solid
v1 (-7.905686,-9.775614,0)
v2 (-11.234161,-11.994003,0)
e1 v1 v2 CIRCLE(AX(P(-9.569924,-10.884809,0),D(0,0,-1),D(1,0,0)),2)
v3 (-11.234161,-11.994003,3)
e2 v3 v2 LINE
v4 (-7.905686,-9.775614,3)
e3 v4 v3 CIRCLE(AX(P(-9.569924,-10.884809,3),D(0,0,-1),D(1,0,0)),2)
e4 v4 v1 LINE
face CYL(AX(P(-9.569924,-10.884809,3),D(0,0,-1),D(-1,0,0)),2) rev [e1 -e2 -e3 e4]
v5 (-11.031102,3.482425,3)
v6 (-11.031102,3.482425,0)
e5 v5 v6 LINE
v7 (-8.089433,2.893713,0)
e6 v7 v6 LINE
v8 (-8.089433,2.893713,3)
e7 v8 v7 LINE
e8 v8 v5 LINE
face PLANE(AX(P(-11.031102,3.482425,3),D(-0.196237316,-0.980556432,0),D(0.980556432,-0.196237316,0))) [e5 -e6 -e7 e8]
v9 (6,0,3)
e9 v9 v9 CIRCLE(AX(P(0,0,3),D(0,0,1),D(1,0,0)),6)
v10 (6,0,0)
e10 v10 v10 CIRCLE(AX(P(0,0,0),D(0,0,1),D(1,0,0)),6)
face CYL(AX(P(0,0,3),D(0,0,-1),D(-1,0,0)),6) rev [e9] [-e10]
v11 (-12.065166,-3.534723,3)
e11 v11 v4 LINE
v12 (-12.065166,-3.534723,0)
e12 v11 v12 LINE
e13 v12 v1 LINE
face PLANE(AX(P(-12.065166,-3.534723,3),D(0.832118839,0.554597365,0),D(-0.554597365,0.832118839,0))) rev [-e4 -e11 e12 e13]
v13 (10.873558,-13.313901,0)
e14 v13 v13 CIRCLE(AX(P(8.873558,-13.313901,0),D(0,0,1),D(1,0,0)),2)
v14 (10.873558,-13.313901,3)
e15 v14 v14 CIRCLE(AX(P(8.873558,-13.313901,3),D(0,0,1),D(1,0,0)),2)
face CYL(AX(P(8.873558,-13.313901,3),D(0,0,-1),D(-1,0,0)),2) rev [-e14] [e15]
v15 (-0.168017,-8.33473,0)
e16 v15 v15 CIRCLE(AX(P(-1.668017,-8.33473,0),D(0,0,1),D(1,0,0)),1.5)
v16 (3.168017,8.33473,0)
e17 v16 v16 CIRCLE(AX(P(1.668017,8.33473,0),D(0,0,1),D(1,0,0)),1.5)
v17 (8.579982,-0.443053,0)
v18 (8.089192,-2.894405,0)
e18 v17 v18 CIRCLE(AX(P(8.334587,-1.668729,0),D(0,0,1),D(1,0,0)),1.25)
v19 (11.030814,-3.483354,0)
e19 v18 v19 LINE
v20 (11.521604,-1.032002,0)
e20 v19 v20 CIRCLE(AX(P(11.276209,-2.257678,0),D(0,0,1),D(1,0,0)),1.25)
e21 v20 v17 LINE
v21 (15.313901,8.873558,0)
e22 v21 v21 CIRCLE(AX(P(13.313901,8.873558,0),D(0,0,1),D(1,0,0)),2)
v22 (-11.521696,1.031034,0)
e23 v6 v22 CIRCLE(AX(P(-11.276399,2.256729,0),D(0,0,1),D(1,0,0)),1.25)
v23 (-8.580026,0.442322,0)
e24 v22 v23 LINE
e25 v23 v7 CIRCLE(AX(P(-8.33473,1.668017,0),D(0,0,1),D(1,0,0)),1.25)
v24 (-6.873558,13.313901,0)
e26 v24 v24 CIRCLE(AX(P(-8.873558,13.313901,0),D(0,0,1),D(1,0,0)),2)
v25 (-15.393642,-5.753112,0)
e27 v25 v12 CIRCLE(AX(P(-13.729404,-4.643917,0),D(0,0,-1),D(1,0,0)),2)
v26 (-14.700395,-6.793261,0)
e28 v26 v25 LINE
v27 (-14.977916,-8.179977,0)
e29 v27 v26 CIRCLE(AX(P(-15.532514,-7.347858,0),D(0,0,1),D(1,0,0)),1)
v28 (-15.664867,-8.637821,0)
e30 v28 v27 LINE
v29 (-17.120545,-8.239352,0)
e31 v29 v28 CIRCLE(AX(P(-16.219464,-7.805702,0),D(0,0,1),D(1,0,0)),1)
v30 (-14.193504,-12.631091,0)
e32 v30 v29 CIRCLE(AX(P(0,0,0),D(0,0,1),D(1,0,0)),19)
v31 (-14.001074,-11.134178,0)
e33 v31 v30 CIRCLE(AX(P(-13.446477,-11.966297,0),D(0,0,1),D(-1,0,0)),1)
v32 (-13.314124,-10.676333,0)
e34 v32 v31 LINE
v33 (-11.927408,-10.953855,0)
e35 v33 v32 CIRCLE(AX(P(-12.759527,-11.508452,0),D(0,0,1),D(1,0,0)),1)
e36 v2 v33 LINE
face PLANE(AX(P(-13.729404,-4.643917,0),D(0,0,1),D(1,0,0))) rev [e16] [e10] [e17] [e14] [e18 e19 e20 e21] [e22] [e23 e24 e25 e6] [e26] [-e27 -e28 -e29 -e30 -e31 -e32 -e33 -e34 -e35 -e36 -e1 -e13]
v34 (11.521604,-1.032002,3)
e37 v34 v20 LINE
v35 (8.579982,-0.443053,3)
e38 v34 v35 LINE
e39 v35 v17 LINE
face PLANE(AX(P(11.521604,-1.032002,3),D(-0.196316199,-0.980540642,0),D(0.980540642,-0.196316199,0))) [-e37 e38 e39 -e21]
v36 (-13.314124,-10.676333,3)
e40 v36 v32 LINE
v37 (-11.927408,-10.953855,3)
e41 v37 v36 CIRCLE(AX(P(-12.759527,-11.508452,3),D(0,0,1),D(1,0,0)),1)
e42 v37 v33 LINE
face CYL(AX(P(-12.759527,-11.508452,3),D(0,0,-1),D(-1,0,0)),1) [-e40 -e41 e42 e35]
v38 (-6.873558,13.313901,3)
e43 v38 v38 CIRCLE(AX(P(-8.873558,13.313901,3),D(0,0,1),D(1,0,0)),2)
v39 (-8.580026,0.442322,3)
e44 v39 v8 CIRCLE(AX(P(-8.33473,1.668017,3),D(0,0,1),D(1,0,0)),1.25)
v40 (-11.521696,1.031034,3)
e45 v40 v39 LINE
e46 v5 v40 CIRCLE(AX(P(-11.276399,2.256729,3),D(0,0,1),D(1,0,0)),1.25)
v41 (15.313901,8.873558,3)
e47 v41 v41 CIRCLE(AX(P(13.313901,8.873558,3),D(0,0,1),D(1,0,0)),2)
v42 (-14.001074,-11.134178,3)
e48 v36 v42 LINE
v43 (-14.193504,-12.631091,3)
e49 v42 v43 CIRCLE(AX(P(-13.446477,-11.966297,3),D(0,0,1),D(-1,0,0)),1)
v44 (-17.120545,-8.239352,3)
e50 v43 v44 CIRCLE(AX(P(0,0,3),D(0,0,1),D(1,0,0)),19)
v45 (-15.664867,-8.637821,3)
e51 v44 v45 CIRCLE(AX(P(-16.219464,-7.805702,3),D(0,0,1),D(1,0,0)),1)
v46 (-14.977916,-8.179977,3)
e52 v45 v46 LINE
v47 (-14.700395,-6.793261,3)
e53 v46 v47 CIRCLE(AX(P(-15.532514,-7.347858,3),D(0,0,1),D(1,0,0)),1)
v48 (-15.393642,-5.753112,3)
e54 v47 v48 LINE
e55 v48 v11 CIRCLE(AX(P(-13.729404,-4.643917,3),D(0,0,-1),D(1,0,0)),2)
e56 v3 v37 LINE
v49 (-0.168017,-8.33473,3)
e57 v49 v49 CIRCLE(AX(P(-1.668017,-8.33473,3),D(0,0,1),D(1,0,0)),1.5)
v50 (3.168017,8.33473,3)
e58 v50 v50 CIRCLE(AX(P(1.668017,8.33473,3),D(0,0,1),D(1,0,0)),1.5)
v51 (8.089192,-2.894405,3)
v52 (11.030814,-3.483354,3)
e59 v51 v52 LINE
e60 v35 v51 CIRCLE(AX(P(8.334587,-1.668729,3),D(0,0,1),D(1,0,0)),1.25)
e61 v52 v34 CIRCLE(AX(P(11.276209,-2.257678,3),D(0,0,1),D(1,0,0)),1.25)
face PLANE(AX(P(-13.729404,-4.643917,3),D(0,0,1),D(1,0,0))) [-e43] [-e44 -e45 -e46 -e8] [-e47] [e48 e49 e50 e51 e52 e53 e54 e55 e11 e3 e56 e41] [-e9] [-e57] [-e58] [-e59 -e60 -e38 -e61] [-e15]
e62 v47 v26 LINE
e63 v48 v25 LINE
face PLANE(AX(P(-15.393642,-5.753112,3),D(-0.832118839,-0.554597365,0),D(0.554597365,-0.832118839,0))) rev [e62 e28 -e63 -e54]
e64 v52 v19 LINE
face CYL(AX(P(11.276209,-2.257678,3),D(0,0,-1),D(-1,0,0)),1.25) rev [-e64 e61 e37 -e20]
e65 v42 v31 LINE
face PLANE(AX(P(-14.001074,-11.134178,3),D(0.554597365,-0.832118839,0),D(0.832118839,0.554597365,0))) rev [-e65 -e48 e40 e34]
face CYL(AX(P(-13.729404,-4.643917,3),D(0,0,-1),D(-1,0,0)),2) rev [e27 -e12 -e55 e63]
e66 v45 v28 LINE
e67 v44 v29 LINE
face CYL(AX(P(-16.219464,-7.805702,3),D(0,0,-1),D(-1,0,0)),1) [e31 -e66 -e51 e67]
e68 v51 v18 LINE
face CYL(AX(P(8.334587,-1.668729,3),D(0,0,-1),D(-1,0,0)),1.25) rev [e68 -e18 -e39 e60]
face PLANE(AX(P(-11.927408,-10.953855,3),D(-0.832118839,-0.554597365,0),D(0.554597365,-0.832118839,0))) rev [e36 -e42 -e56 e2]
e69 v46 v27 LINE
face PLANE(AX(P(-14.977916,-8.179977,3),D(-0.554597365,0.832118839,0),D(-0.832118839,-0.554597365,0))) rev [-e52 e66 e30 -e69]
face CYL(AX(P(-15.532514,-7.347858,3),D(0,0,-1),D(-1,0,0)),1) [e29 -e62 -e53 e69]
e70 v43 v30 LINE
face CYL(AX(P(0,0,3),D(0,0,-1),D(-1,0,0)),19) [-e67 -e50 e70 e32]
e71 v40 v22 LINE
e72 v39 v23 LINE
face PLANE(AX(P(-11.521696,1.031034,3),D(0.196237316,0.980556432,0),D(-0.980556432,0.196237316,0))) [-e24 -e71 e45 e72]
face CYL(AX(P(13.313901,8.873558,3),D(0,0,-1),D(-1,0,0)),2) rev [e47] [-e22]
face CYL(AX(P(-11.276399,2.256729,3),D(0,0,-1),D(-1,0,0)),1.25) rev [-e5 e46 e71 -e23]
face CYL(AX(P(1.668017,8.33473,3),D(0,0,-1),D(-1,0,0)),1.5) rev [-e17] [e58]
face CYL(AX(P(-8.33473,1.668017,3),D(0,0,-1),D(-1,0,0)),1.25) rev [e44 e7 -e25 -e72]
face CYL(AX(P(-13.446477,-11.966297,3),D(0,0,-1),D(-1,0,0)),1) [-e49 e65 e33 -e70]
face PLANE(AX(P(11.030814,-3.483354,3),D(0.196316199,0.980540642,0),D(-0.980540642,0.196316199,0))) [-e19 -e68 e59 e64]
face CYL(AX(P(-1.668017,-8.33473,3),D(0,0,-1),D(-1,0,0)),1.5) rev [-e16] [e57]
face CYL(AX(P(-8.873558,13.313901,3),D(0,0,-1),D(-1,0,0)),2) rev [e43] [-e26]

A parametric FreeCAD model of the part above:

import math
import FreeCAD as App
import Part
import Sketcher
from FreeCAD import Vector
Q = App.Units.Quantity

doc = App.newDocument("Part")
body = doc.addObject("PartDesign::Body", "Body")

sketch1 = body.newObject("Sketcher::SketchObject", "Sketch")
sketch1.AttachmentSupport = (doc.getObject("XY_Plane"), [""])
sketch1.MapMode = "FlatFace"
sketch1.addGeometry([
    Part.LineSegment(Vector(-12.065166, -3.534723, 0), Vector(-7.905686, -9.775614, 0)),
    Part.ArcOfCircle(Part.Circle(Vector(-9.569924, -10.884809, 0), Vector(0, 0, 1), 2), math.radians(-146.317013), math.radians(33.682987)),
    Part.LineSegment(Vector(-11.234161, -11.994003, 0), Vector(-11.927408, -10.953855, 0)),
    Part.ArcOfCircle(Part.Circle(Vector(-12.759527, -11.508452, 0), Vector(0, 0, 1), 1), math.radians(33.682987), math.radians(123.682987)),
    Part.LineSegment(Vector(-13.314124, -10.676333, 0), Vector(-14.001074, -11.134178, 0)),
    Part.ArcOfCircle(Part.Circle(Vector(-13.446477, -11.966297, 0), Vector(0, 0, 1), 1), math.radians(123.682987), math.radians(221.666543)),
    Part.ArcOfCircle(Part.Circle(Vector(0, 0, 0), Vector(0, 0, 1), 19), math.radians(-138.333457), math.radians(205.699431)),
    Part.ArcOfCircle(Part.Circle(Vector(-16.219464, -7.805702, 0), Vector(0, 0, 1), 1), math.radians(-154.300569), math.radians(-56.317013)),
    Part.LineSegment(Vector(-15.664867, -8.637821, 0), Vector(-14.977916, -8.179977, 0)),
    Part.ArcOfCircle(Part.Circle(Vector(-15.532514, -7.347858, 0), Vector(0, 0, 1), 1), math.radians(-56.317013), math.radians(33.682987)),
    Part.LineSegment(Vector(-14.700395, -6.793261, 0), Vector(-15.393642, -5.753112, 0)),
    Part.ArcOfCircle(Part.Circle(Vector(-13.729404, -4.643917, 0), Vector(0, 0, 1), 2), math.radians(33.682987), math.radians(213.682987)),
    Part.Circle(Vector(-1.668017, -8.33473, 0), Vector(0, 0, 1), 1.5),
    Part.Circle(Vector(0, 0, 0), Vector(0, 0, 1), 6),
    Part.Circle(Vector(8.873558, -13.313901, 0), Vector(0, 0, 1), 2),
    Part.ArcOfCircle(Part.Circle(Vector(11.276209, -2.257678, 0), Vector(0, 0, 1), 1.25), math.radians(-101.321623), math.radians(78.678377)),
    Part.LineSegment(Vector(11.030814, -3.483354, 0), Vector(8.089192, -2.894405, 0)),
    Part.ArcOfCircle(Part.Circle(Vector(8.334587, -1.668729, 0), Vector(0, 0, 1), 1.25), math.radians(78.678377), math.radians(258.678377)),
    Part.LineSegment(Vector(8.579982, -0.443053, 0), Vector(11.521604, -1.032002, 0)),
    Part.ArcOfCircle(Part.Circle(Vector(-11.276399, 2.256729, 0), Vector(0, 0, 1), 1.25), math.radians(78.682987), math.radians(258.682987)),
    Part.LineSegment(Vector(-11.031102, 3.482425, 0), Vector(-8.089433, 2.893713, 0)),
    Part.ArcOfCircle(Part.Circle(Vector(-8.33473, 1.668017, 0), Vector(0, 0, 1), 1.25), math.radians(-101.317013), math.radians(78.682987)),
    Part.LineSegment(Vector(-8.580026, 0.442322, 0), Vector(-11.521696, 1.031034, 0)),
    Part.Circle(Vector(-8.873558, 13.313901, 0), Vector(0, 0, 1), 2),
    Part.Circle(Vector(1.668017, 8.33473, 0), Vector(0, 0, 1), 1.5),
    Part.Circle(Vector(13.313901, 8.873558, 0), Vector(0, 0, 1), 2),
], False)
sketch1.addConstraint([
    Sketcher.Constraint("Tangent", 0, 2, 1, 2),
    Sketcher.Constraint("Tangent", 1, 1, 2, 1),
    Sketcher.Constraint("Tangent", 2, 2, 3, 1),
    Sketcher.Constraint("Tangent", 3, 2, 4, 1),
    Sketcher.Constraint("Tangent", 4, 2, 5, 1),
    Sketcher.Constraint("Tangent", 5, 2, 6, 1),
    Sketcher.Constraint("Tangent", 6, 2, 7, 1),
    Sketcher.Constraint("Tangent", 7, 2, 8, 1),
    Sketcher.Constraint("Tangent", 8, 2, 9, 1),
    Sketcher.Constraint("Tangent", 9, 2, 10, 1),
    Sketcher.Constraint("Tangent", 10, 2, 11, 2),
    Sketcher.Constraint("Tangent", 11, 1, 0, 1),
    Sketcher.Constraint("Tangent", 15, 1, 16, 1),
    Sketcher.Constraint("Tangent", 16, 2, 17, 2),
    Sketcher.Constraint("Tangent", 17, 1, 18, 1),
    Sketcher.Constraint("Tangent", 18, 2, 15, 2),
    Sketcher.Constraint("Tangent", 19, 1, 20, 1),
    Sketcher.Constraint("Tangent", 20, 2, 21, 2),
    Sketcher.Constraint("Tangent", 21, 1, 22, 1),
    Sketcher.Constraint("Tangent", 22, 2, 19, 2),
    Sketcher.Constraint("Coincident", 6, 3, -1, 1),
    Sketcher.Constraint("Coincident", 13, 3, -1, 1),
    Sketcher.Constraint("Equal", 3, 5),
    Sketcher.Constraint("Equal", 5, 7),
    Sketcher.Constraint("Equal", 7, 9),
    Sketcher.Constraint("Equal", 1, 11),
    Sketcher.Constraint("Equal", 11, 14),
    Sketcher.Constraint("Equal", 15, 17),
    Sketcher.Constraint("Equal", 17, 19),
    Sketcher.Constraint("Equal", 19, 21),
    Sketcher.Constraint("Equal", 14, 23),
    Sketcher.Constraint("Equal", 12, 24),
    Sketcher.Constraint("Equal", 23, 25),
    Sketcher.Constraint("Symmetric", 14, 3, 23, 3, -1, 1),
    Sketcher.Constraint("Symmetric", 12, 3, 24, 3, -1, 1),
    Sketcher.Constraint("Parallel", 0, 2),
    Sketcher.Constraint("Perpendicular", 2, 4),
    Sketcher.Constraint("Parallel", 4, 8),
    Sketcher.Constraint("Perpendicular", 8, 10),
    Sketcher.Constraint("Equal", 4, 8),
    Sketcher.Constraint("Equal", 2, 10),
    Sketcher.Constraint("Equal", 18, 20),
    Sketcher.Constraint("Diameter", 12, Q("3 mm")),
    Sketcher.Constraint("Diameter", 13, Q("12 mm")),
    Sketcher.Constraint("Diameter", 14, Q("4 mm")),
    Sketcher.Constraint("Radius", 3, Q("1 mm")),
    Sketcher.Constraint("Radius", 6, Q("19 mm")),
    Sketcher.Constraint("Radius", 15, Q("1.25 mm")),
    Sketcher.Constraint("Distance", 16, Q("3 mm")),
    Sketcher.Constraint("Distance", 0, Q("7.5 mm")),
    Sketcher.Constraint("Distance", 2, Q("1.25 mm")),
    Sketcher.Constraint("DistanceY", 12, 3, 17, 3, Q("6.666 mm")),
    Sketcher.Constraint("DistanceY", 14, 3, -1, 1, Q("13.313901 mm")),
    Sketcher.Constraint("DistanceX", 19, 3, -1, 1, Q("11.276399 mm")),
    Sketcher.Constraint("DistanceX", -1, 1, 25, 3, Q("13.313901 mm")),
    Sketcher.Constraint("DistanceY", 15, 1, 17, 1, Q("3.0403 mm")),
    Sketcher.Constraint("DistanceX", 11, 3, 19, 1, Q("2.698302 mm")),
    Sketcher.Constraint("DistanceY", 1, 3, -1, 1, Q("10.884809 mm")),
    Sketcher.Constraint("DistanceY", 9, 3, -1, 1, Q("7.347858 mm")),
    Sketcher.Constraint("DistanceY", 12, 3, -1, 1, Q("8.33473 mm")),
    Sketcher.Constraint("DistanceX", -1, 1, 15, 3, Q("11.276209 mm")),
    Sketcher.Constraint("DistanceY", -1, 1, 19, 3, Q("2.256729 mm")),
    Sketcher.Constraint("DistanceX", 3, 3, 12, 3, Q("11.09151 mm")),
    Sketcher.Constraint("DistanceX", 1, 3, 14, 3, Q("18.443481 mm")),
    Sketcher.Constraint("DistanceY", 24, 3, 25, 3, Q("0.538828 mm")),
])
pad1 = body.newObject("PartDesign::Pad", "Pad")
pad1.Profile = sketch1
pad1.Length = 3

doc.recompute()
